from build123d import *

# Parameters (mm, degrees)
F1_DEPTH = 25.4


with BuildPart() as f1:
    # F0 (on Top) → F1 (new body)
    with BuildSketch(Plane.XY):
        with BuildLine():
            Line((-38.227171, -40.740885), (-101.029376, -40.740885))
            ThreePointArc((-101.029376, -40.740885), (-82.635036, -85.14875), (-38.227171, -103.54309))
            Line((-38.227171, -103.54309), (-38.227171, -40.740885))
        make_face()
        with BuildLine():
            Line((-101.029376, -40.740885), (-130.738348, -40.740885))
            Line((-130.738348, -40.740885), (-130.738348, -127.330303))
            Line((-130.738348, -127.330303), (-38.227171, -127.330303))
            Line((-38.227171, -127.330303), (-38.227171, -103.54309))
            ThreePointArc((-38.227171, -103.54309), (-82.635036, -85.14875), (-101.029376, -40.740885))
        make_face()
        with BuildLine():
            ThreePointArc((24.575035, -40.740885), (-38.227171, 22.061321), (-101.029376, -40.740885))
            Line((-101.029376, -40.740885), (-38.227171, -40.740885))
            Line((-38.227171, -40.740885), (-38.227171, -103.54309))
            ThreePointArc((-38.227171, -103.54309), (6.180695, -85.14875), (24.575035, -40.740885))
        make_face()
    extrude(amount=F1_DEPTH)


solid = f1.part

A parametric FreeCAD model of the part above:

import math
import FreeCAD as App
import Part
import Sketcher
from FreeCAD import Vector
Q = App.Units.Quantity

doc = App.newDocument("Part")
params = doc.addObject("Spreadsheet::Sheet", "Params")
for row, (alias, value) in enumerate([
    ("pad1_length", "1 in"),
], start=1):
    params.set(f"A{row}", alias)
    params.set(f"B{row}", "=" + value)
    params.setAlias(f"B{row}", alias)

body = doc.addObject("PartDesign::Body", "Body")

sketch1 = doc.addObject("Sketcher::SketchObject", "Sketch")
body.addObject(sketch1)
sketch1.AttachmentSupport = (doc.XY_Plane, [""])
sketch1.MapMode = "FlatFace"
sketch1.addGeometry([
    Part.LineSegment(Vector(-101.029376, -40.740885, 0), Vector(-130.738348, -40.740885, 0)),
    Part.LineSegment(Vector(-130.738348, -40.740885, 0), Vector(-130.738348, -127.330303, 0)),
    Part.LineSegment(Vector(-130.738348, -127.330303, 0), Vector(-38.227171, -127.330303, 0)),
    Part.LineSegment(Vector(-38.227171, -127.330303, 0), Vector(-38.227171, -103.54309, 0)),
    Part.ArcOfCircle(Part.Circle(Vector(-38.22717, -40.740885, 0), Vector(0, 0, 1), 62.802205), math.radians(-90.000001), math.radians(0)),
    Part.ArcOfCircle(Part.Circle(Vector(-38.22717, -40.740884, 0), Vector(0, 0, 1), 62.802205), math.radians(0), math.radians(180)),
], False)
sketch1.addConstraint([
    Sketcher.Constraint("Coincident", 0, 2, 1, 1),
    Sketcher.Constraint("Coincident", 1, 2, 2, 1),
    Sketcher.Constraint("Coincident", 2, 2, 3, 1),
    Sketcher.Constraint("Coincident", 3, 2, 4, 1),
    Sketcher.Constraint("Tangent", 4, 2, 5, 1),
    Sketcher.Constraint("Coincident", 5, 2, 0, 1),
    Sketcher.Constraint("Horizontal", 0),
    Sketcher.Constraint("Vertical", 1),
    Sketcher.Constraint("Horizontal", 2),
    Sketcher.Constraint("Vertical", 3),
    Sketcher.Constraint("Equal", 4, 5),
    Sketcher.Constraint("Horizontal", 5, 3, 0, 2),
    Sketcher.Constraint("Horizontal", 0, 2, 4, 2),
    Sketcher.Constraint("Vertical", 5, 3, 2, 2),
    Sketcher.Constraint("Radius", 4, 62.802205),
    Sketcher.Constraint("DistanceX", 0, 2, 4, 2, Q("6.1147001 in")),
    Sketcher.Constraint("DistanceY", 1, 2, 1, 1, 86.589418),
    Sketcher.Constraint("DistanceX", 4, 3, -1, 1, 38.22717),
    Sketcher.Constraint("DistanceY", 3, 2, -1, 1, 103.54309),
])
pad1 = doc.addObject("PartDesign::Pad", "Pad")
body.addObject(pad1)
pad1.Profile = sketch1
pad1.setExpression("Length", "Params.pad1_length")

doc.recompute()
